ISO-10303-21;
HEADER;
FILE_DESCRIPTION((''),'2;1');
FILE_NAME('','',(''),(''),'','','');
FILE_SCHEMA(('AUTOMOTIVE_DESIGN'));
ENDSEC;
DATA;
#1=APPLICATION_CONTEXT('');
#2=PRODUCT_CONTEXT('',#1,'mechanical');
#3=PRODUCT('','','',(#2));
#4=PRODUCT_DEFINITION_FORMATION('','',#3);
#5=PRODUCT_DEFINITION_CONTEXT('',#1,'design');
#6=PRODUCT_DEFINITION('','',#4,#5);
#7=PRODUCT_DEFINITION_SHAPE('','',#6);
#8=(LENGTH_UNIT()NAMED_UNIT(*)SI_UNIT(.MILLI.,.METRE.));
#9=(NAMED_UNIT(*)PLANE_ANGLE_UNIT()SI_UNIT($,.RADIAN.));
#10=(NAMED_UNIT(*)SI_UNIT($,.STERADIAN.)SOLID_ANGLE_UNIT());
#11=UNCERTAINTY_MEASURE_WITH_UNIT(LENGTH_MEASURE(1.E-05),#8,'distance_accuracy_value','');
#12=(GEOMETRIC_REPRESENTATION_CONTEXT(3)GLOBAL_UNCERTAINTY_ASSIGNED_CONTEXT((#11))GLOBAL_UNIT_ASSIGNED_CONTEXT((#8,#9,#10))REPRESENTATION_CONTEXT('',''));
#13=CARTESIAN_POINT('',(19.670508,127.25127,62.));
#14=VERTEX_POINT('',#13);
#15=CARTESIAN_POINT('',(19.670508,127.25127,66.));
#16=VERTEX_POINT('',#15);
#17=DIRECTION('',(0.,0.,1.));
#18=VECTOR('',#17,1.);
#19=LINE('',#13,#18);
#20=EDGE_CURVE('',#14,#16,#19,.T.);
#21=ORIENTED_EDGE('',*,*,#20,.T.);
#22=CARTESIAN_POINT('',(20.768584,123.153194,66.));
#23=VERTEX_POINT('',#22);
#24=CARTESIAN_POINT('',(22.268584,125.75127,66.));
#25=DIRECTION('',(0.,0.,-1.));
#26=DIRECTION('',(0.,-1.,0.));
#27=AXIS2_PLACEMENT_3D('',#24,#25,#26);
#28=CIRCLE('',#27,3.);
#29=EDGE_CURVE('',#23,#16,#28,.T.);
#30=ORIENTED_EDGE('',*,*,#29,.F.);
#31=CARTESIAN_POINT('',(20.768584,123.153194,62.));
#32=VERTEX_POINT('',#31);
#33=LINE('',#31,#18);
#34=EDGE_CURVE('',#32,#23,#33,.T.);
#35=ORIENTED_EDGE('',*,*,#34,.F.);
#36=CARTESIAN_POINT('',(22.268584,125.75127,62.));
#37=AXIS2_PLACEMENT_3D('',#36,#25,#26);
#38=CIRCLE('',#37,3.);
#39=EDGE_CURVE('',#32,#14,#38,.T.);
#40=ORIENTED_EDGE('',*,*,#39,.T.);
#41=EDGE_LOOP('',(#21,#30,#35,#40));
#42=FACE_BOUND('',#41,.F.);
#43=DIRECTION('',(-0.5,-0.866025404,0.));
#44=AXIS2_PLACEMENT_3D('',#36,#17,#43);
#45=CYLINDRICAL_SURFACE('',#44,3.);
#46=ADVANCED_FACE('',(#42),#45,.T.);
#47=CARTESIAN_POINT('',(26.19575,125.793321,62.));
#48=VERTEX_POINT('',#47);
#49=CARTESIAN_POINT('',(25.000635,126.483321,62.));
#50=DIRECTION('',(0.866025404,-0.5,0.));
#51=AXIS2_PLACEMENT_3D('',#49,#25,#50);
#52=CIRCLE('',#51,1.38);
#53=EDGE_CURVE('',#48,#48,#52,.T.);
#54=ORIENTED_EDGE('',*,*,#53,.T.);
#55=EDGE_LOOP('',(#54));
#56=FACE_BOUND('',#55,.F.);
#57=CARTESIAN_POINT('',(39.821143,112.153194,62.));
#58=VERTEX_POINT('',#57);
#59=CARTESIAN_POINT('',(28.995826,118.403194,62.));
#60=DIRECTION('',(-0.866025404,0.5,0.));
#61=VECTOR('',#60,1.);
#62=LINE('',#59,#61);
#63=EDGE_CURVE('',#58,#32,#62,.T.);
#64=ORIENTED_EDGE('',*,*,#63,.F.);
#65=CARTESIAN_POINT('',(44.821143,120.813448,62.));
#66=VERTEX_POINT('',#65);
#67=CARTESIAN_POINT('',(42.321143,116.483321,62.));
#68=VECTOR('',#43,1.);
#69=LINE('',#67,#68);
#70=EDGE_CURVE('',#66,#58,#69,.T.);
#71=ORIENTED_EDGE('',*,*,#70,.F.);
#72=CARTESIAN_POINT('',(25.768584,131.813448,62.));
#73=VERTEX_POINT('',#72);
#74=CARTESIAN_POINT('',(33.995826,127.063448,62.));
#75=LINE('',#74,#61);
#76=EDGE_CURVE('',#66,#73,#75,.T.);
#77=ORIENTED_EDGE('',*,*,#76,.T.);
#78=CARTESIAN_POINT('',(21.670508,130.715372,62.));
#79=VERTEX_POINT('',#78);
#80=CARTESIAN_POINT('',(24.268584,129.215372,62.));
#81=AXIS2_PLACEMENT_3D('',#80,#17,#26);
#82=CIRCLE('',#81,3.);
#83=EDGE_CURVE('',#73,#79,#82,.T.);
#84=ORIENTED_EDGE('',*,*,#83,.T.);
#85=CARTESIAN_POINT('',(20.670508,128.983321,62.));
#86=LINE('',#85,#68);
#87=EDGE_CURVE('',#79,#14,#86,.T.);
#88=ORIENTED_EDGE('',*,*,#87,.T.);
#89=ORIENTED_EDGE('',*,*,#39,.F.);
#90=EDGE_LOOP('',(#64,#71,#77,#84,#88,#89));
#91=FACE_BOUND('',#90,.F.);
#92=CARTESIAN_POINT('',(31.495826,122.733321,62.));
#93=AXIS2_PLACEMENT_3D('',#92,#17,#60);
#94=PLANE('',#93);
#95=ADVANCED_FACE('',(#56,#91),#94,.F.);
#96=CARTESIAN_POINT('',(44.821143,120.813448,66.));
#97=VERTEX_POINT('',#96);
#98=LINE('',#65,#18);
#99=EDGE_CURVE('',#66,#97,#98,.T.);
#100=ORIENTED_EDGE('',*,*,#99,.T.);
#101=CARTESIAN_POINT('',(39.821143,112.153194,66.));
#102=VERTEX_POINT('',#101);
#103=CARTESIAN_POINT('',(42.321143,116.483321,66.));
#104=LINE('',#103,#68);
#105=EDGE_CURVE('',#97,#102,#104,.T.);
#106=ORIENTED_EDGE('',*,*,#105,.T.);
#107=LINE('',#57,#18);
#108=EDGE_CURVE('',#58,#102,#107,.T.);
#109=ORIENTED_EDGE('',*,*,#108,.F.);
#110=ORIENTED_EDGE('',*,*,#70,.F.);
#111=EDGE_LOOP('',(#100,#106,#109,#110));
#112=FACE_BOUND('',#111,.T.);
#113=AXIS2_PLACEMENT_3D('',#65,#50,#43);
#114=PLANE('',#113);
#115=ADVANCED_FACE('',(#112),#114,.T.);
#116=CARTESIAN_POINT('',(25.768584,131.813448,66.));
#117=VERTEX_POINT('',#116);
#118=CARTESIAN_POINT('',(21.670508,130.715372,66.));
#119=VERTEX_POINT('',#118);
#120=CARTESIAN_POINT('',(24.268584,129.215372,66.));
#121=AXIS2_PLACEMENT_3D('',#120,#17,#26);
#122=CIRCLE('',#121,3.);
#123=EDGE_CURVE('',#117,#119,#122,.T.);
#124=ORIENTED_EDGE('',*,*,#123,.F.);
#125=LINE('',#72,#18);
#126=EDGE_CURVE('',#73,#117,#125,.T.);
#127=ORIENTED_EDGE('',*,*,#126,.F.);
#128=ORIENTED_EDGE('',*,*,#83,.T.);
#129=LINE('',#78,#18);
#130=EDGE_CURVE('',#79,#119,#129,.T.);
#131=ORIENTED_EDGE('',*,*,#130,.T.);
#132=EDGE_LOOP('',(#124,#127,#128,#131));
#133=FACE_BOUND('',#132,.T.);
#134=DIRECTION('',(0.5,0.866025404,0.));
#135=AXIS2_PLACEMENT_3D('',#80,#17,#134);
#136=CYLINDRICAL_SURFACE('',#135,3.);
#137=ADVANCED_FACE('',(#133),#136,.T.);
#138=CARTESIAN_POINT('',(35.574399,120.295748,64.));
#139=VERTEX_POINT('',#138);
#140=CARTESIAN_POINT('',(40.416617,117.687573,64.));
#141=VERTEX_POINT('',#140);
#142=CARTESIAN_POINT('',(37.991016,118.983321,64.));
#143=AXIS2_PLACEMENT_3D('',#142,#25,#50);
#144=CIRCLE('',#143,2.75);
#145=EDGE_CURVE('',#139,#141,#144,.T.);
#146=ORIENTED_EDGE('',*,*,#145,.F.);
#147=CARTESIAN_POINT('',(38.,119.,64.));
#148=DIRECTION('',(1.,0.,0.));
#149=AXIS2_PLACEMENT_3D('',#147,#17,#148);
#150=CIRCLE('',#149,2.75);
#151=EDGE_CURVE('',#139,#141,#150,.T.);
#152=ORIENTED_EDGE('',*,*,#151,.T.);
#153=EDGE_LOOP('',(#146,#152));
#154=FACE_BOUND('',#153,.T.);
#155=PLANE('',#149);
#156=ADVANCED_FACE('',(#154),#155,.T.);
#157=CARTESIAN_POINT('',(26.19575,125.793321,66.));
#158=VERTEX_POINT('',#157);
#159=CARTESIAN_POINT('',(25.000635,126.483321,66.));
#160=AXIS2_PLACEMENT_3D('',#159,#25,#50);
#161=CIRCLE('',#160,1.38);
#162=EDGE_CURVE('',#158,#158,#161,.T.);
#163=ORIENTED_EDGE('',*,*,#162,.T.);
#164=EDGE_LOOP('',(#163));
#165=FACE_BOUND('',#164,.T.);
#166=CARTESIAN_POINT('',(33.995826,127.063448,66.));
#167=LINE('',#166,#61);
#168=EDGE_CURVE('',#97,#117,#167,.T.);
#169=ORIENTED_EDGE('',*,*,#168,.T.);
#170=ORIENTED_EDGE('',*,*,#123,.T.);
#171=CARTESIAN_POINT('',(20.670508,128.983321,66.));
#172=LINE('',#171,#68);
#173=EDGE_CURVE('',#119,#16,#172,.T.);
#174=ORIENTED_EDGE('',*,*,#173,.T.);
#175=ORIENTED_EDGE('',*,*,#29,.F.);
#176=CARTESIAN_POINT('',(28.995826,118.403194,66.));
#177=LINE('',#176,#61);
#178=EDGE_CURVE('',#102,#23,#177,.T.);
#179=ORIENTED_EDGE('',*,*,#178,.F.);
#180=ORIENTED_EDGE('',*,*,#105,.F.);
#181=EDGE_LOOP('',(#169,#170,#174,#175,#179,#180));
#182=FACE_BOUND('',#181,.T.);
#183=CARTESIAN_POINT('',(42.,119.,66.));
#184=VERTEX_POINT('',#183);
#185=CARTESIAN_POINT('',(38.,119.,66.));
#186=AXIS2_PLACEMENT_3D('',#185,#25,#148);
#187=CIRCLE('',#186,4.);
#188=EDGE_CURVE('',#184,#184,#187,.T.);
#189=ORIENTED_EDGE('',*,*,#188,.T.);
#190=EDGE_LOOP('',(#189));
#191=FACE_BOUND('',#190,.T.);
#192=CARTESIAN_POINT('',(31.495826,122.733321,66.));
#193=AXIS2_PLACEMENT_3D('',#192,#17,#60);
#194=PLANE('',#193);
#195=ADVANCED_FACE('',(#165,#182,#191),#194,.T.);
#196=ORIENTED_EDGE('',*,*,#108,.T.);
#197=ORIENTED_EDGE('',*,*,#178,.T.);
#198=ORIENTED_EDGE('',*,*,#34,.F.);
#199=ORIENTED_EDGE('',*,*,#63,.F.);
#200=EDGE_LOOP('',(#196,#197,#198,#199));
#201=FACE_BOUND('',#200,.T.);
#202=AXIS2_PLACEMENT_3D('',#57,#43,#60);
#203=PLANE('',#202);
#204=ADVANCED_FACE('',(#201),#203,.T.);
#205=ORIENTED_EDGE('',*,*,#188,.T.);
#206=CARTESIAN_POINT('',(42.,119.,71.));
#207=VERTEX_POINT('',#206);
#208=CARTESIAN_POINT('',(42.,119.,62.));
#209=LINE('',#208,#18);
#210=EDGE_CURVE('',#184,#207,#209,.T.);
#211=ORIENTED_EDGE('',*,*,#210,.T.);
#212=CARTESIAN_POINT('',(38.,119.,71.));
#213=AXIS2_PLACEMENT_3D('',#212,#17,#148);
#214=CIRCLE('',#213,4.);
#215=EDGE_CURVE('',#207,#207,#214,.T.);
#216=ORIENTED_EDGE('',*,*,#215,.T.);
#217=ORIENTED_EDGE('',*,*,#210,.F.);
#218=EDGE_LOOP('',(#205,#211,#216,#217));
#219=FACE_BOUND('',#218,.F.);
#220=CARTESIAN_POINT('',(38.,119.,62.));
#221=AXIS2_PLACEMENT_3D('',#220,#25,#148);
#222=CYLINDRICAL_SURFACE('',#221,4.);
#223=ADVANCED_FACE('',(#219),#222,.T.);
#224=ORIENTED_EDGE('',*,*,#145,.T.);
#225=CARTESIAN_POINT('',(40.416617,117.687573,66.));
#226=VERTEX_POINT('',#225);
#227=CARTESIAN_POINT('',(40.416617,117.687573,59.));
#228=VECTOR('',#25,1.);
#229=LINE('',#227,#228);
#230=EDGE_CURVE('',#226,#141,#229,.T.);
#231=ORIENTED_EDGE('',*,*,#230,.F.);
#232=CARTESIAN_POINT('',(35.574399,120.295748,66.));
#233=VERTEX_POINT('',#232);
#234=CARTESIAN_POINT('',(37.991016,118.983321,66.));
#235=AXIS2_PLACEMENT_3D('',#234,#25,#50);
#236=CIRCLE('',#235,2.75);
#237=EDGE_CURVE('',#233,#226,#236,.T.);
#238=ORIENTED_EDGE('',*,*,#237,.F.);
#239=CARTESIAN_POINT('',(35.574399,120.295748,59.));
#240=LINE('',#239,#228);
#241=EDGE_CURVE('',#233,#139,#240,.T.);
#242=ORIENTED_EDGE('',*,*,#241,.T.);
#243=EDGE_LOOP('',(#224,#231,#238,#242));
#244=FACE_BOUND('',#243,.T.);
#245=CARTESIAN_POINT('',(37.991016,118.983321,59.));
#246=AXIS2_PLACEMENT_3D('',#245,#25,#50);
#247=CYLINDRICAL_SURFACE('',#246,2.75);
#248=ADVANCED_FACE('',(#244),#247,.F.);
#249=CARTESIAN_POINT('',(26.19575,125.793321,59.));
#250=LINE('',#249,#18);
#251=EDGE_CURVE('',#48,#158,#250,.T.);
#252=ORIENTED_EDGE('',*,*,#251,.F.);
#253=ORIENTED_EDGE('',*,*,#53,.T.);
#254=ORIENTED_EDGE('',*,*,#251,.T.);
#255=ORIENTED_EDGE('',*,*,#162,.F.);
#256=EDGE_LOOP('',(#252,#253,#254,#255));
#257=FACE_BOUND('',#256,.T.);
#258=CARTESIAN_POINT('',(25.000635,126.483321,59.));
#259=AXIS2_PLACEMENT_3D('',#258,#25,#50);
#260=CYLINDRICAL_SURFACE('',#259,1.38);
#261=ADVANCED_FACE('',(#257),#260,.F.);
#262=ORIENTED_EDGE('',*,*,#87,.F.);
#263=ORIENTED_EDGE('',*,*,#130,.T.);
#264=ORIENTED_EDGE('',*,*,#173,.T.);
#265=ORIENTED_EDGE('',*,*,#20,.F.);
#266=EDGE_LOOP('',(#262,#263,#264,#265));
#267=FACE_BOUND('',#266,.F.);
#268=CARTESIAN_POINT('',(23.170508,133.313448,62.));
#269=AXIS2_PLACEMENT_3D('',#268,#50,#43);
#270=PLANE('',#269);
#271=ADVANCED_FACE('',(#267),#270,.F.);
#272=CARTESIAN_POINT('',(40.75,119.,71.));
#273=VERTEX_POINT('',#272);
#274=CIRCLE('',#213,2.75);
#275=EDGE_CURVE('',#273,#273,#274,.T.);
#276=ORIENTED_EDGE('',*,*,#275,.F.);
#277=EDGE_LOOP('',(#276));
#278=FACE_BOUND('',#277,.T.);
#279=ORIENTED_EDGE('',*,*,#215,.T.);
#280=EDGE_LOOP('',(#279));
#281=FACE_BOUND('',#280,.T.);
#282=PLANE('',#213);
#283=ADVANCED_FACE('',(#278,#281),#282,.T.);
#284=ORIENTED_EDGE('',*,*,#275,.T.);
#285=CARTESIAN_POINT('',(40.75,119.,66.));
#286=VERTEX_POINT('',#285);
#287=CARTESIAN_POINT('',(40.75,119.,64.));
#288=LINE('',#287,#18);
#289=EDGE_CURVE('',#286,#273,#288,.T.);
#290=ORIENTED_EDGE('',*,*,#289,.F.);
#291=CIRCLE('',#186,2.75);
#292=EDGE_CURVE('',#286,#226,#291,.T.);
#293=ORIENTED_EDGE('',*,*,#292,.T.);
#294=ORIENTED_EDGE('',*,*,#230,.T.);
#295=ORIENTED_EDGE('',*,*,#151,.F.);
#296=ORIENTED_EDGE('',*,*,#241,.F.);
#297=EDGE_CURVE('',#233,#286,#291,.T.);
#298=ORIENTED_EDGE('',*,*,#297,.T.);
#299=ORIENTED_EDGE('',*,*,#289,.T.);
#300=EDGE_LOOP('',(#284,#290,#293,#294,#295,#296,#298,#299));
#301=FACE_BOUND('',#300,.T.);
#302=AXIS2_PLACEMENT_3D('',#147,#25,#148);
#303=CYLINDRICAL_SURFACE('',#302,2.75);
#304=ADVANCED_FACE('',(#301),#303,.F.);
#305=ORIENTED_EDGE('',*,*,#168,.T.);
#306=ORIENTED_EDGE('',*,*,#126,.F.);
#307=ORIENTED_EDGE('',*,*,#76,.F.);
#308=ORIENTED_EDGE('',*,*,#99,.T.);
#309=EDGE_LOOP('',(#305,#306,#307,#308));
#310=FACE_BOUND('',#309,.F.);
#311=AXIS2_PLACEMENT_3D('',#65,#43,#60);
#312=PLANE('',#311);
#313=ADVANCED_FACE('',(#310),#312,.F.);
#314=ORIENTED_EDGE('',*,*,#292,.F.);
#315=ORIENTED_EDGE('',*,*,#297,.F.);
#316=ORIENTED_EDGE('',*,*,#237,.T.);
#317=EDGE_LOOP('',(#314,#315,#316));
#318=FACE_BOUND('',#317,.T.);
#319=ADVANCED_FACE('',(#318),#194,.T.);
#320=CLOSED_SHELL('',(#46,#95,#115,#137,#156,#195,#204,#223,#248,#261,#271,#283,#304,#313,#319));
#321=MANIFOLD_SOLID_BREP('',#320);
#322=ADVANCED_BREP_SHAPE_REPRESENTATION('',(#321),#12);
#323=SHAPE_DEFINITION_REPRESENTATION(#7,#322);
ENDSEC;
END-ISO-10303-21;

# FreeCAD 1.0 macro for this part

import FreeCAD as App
import Part
import Sketcher

V = App.Vector
Q = App.Units.Quantity


def edges_at(feature, points):
    """Names of the edges that pass closest to the given points."""
    edges = feature.Shape.Edges
    near = lambda p: min(range(len(edges)), key=lambda i: edges[i].distToShape(Part.Vertex(*p))[0])
    return sorted({f"Edge{near(p) + 1}" for p in points})


def add_polygon(sketch, points):
    """Adds a closed chain of lines whose ends are joined by coincident constraints."""
    first, n = sketch.GeometryCount, len(points)
    for a, b in zip(points, points[1:] + points[:1]):
        sketch.addGeometry(Part.LineSegment(App.Vector(*a, 0), App.Vector(*b, 0)), False)
    for i in range(n):
        sketch.addConstraint(Sketcher.Constraint("Coincident", first + i, 2, first + (i + 1) % n, 1))

doc = App.newDocument("Part")
body = doc.addObject("PartDesign::Body", "Body")

# Sketch on XY plane
sketch1 = doc.addObject("Sketcher::SketchObject", "Sketch")
body.addObject(sketch1)
sketch1.AttachmentSupport = (doc.XY_Plane, [""])
sketch1.MapMode = "FlatFace"
sketch1.AttachmentOffset = App.Placement(V(0, 0, 12), App.Rotation())
sketch1.addGeometry(Part.Circle(V(17, 17, 0), V(0, 0, 1), 2.75), False)
sketch1.addConstraint([
    Sketcher.Constraint("Diameter", 0, Q("5.5 mm")),
    Sketcher.Constraint("DistanceX", -1, 1, 0, 3, Q("17 mm")),
    Sketcher.Constraint("DistanceY", -1, 1, 0, 3, Q("17 mm")),
])
pad1 = doc.addObject("PartDesign::Pad", "Pad")
body.addObject(pad1)
pad1.Profile = sketch1
pad1.Length = 7
body2 = doc.addObject("PartDesign::Body", "Body001")

# Sketch on XY plane
sketch2 = doc.addObject("Sketcher::SketchObject", "Sketch001")
body2.addObject(sketch2)
sketch2.AttachmentSupport = (doc.getObject("XY_Plane001"), [""])
sketch2.MapMode = "FlatFace"
sketch2.AttachmentOffset = App.Placement(V(0, 0, 10), App.Rotation())
sketch2.addGeometry(Part.Circle(V(17, 17, 0), V(0, 0, 1), 4), False)
sketch2.addConstraint([
    Sketcher.Constraint("Diameter", 0, Q("8 mm")),
    Sketcher.Constraint("DistanceX", -1, 1, 0, 3, Q("17 mm")),
    Sketcher.Constraint("DistanceY", -1, 1, 0, 3, Q("17 mm")),
])
pad2 = doc.addObject("PartDesign::Pad", "Pad001")
body2.addObject(pad2)
pad2.Profile = sketch2
pad2.Length = 9
doc.recompute()

boolean = doc.addObject("PartDesign::Boolean", "Boolean")
body2.addObject(boolean)
boolean.Type = "Cut"
boolean.addObjects([body])
body3 = doc.addObject("PartDesign::Body", "Body002")
doc.recompute()

body2.Placement = App.Placement(V(21, 102, 52), App.Rotation(V(0, 0, 1), 0))
boolean2 = doc.addObject("PartDesign::Boolean", "Boolean001")
body3.addObject(boolean2)
boolean2.Type = "Fuse"
boolean2.addObjects([body2])
body4 = doc.addObject("PartDesign::Body", "Body003")

# Sketch on XY plane
sketch3 = doc.addObject("Sketcher::SketchObject", "Sketch002")
body4.addObject(sketch3)
sketch3.AttachmentSupport = (doc.getObject("XY_Plane003"), [""])
sketch3.MapMode = "FlatFace"
sketch3.AttachmentOffset = App.Placement(V(0, 0, 59), App.Rotation())
sketch3.addGeometry(Part.Circle(V(25, 52, 0), V(0, 0, 1), 1.38), False)
sketch3.addConstraint([
    Sketcher.Constraint("Diameter", 0, Q("2.76 mm")),
    Sketcher.Constraint("DistanceX", -1, 1, 0, 3, Q("25 mm")),
    Sketcher.Constraint("DistanceY", -1, 1, 0, 3, Q("52 mm")),
])
pad3 = doc.addObject("PartDesign::Pad", "Pad002")
body4.addObject(pad3)
pad3.Profile = sketch3
pad3.Length = 10
body5 = doc.addObject("PartDesign::Body", "Body004")

# Sketch on XY plane
sketch4 = doc.addObject("Sketcher::SketchObject", "Sketch003")
body5.addObject(sketch4)
sketch4.AttachmentSupport = (doc.getObject("XY_Plane004"), [""])
sketch4.MapMode = "FlatFace"
sketch4.AttachmentOffset = App.Placement(V(0, 0, 59), App.Rotation())
sketch4.addGeometry(Part.Circle(V(40, 52, 0), V(0, 0, 1), 2.75), False)
sketch4.addConstraint([
    Sketcher.Constraint("Diameter", 0, Q("5.5 mm")),
    Sketcher.Constraint("DistanceX", -1, 1, 0, 3, Q("40 mm")),
    Sketcher.Constraint("DistanceY", -1, 1, 0, 3, Q("52 mm")),
])
pad4 = doc.addObject("PartDesign::Pad", "Pad003")
body5.addObject(pad4)
pad4.Profile = sketch4
pad4.Length = 10
body6 = doc.addObject("PartDesign::Body", "Body005")

# Sketch on XY plane
sketch5 = doc.addObject("Sketcher::SketchObject", "Sketch004")
body6.addObject(sketch5)
sketch5.AttachmentSupport = (doc.getObject("XY_Plane005"), [""])
sketch5.MapMode = "FlatFace"
sketch5.AttachmentOffset = App.Placement(V(0, 0, 62), App.Rotation())
add_polygon(sketch5, [(45, 47), (45, 57), (20, 57), (20, 47)])  # lines 0-3
sketch5.addConstraint([
    Sketcher.Constraint("Vertical", 0),
    Sketcher.Constraint("Horizontal", 1),
    Sketcher.Constraint("Vertical", 2),
    Sketcher.Constraint("Horizontal", 3),
    Sketcher.Constraint("DistanceX", 1, 2, 1, 1, Q("25 mm")),
    Sketcher.Constraint("DistanceY", 0, 1, 0, 2, Q("10 mm")),
    Sketcher.Constraint("DistanceX", -1, 1, 0, 2, Q("45 mm")),
    Sketcher.Constraint("DistanceY", -1, 1, 0, 2, Q("57 mm")),
])
pad5 = doc.addObject("PartDesign::Pad", "Pad004")
body6.addObject(pad5)
pad5.Profile = sketch5
pad5.Length = 4
doc.recompute()

boolean3 = doc.addObject("PartDesign::Boolean", "Boolean002")
body6.addObject(boolean3)
boolean3.Type = "Cut"
boolean3.addObjects([body5])
doc.recompute()

boolean4 = doc.addObject("PartDesign::Boolean", "Boolean003")
body6.addObject(boolean4)
boolean4.Type = "Cut"
boolean4.addObjects([body4])
body7 = doc.addObject("PartDesign::Body", "Body006")
doc.recompute()

body6.Placement = App.Placement(V(-20.65, 26.95, 0), App.Rotation(V(0, 0, -1), 30))
boolean5 = doc.addObject("PartDesign::Boolean", "Boolean004")
body7.addObject(boolean5)
boolean5.Type = "Fuse"
boolean5.addObjects([body6])
doc.recompute()

fillet = doc.addObject("PartDesign::Fillet", "Fillet")
body7.addObject(fillet)
fillet.Base = (boolean5, edges_at(boolean5, [(25.171, 66.313, 64), (20.171, 57.653, 64)]))
fillet.Radius = 3
body8 = doc.addObject("PartDesign::Body", "Body007")
doc.recompute()

body7.Placement = App.Placement(V(-2, 67, 0), App.Rotation(V(0, 0, 1), 0))
boolean6 = doc.addObject("PartDesign::Boolean", "Boolean005")
body8.addObject(boolean6)
boolean6.Type = "Fuse"
boolean6.addObjects([body7])
doc.recompute()

boolean7 = doc.addObject("PartDesign::Boolean", "Boolean006")
body8.addObject(boolean7)
boolean7.Type = "Fuse"
boolean7.addObjects([body3])

doc.recompute()
